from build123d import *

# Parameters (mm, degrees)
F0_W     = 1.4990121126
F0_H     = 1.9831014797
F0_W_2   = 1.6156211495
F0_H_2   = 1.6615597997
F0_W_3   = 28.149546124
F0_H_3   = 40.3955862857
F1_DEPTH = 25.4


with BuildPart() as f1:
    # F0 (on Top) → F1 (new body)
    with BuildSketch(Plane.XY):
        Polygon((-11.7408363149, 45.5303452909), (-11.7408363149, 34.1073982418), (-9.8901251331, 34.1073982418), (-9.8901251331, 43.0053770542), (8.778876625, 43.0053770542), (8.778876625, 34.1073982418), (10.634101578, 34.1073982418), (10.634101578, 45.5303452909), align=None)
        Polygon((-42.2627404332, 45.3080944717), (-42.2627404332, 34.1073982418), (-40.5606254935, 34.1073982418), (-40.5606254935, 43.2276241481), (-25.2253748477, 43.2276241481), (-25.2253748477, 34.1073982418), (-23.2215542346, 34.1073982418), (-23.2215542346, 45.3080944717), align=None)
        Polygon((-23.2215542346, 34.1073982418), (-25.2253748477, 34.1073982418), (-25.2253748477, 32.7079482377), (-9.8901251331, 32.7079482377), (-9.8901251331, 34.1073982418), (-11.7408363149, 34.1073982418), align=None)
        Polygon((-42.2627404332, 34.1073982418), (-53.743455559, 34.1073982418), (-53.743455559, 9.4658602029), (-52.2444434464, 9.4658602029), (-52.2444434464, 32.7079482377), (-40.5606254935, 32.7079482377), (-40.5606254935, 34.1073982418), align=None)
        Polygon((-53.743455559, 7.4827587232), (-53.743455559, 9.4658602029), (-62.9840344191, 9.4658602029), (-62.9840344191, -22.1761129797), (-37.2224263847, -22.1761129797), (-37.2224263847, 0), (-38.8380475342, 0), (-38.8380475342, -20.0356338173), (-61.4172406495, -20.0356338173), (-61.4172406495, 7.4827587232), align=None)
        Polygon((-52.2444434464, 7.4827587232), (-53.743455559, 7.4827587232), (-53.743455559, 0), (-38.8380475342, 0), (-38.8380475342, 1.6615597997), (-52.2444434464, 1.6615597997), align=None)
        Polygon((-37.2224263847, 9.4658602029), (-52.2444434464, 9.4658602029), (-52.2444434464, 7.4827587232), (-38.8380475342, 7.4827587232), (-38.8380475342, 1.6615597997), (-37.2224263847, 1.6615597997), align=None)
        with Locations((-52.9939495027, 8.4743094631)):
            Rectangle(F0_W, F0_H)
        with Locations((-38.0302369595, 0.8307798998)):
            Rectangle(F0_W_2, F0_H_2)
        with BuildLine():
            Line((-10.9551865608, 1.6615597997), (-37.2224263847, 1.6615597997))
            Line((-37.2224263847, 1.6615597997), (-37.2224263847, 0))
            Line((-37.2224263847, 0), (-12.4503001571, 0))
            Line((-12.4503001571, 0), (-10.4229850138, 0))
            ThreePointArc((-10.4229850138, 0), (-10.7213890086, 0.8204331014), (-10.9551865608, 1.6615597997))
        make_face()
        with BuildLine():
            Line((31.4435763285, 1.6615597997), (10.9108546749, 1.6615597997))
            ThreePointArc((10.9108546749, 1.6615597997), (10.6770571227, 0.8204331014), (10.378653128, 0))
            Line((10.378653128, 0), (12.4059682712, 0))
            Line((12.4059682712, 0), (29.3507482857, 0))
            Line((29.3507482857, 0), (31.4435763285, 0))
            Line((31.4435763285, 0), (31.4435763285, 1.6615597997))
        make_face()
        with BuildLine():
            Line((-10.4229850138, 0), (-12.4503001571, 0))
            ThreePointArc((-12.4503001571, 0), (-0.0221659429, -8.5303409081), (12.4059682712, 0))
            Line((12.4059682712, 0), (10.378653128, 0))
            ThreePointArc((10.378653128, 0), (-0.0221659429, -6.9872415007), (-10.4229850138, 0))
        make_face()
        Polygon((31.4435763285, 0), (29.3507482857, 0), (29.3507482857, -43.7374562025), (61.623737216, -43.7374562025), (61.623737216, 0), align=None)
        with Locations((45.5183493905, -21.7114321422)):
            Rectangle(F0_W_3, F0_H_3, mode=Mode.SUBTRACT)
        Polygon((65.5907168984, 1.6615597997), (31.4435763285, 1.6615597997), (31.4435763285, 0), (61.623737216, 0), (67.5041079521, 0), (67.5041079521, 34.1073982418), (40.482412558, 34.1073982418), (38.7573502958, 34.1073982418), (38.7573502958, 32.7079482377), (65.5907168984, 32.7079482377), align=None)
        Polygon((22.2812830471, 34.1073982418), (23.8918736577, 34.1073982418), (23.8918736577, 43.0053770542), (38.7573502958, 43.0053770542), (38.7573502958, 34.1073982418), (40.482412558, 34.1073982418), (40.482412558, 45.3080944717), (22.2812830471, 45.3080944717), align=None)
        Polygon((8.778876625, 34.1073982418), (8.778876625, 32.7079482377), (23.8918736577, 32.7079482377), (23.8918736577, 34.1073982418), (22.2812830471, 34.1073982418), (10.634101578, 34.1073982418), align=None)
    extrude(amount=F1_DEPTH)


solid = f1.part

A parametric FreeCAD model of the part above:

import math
import FreeCAD as App
import Part
import Sketcher

V = App.Vector
Q = App.Units.Quantity

doc = App.newDocument("Part")
body = doc.addObject("PartDesign::Body", "Body")

sketch1 = body.newObject("Sketcher::SketchObject", "Sketch")
sketch1.AttachmentSupport = (doc.getObject("XY_Plane"), [""])
sketch1.MapMode = "FlatFace"
sketch1.addGeometry(Part.LineSegment(V(-37.2, -22.2, 0), V(-37.2, 0, 0)), False)
sketch1.addGeometry(Part.LineSegment(V(-37.2, 0, 0), V(-12.5, 0, 0)), False)
sketch1.addGeometry(Part.ArcOfCircle(Part.Circle(V(0, 4.8, 0), V(0, 0, 1), 13.3), math.radians(-159), math.radians(-21)), False)
sketch1.addGeometry(Part.LineSegment(V(12.4, 0, 0), V(29.4, 0, 0)), False)
sketch1.addGeometry(Part.LineSegment(V(29.4, 0, 0), V(29.4, -43.7, 0)), False)
sketch1.addGeometry(Part.LineSegment(V(29.4, -43.7, 0), V(61.6, -43.7, 0)), False)
sketch1.addGeometry(Part.LineSegment(V(61.6, -43.7, 0), V(61.6, 0, 0)), False)
sketch1.addGeometry(Part.LineSegment(V(61.6, 0, 0), V(67.5, 0, 0)), False)
sketch1.addGeometry(Part.LineSegment(V(67.5, 0, 0), V(67.5, 34.1, 0)), False)
sketch1.addGeometry(Part.LineSegment(V(67.5, 34.1, 0), V(40.5, 34.1, 0)), False)
sketch1.addGeometry(Part.LineSegment(V(40.5, 34.1, 0), V(40.5, 45.3, 0)), False)
sketch1.addGeometry(Part.LineSegment(V(40.5, 45.3, 0), V(22.3, 45.3, 0)), False)
sketch1.addGeometry(Part.LineSegment(V(22.3, 45.3, 0), V(22.3, 34.1, 0)), False)
sketch1.addGeometry(Part.LineSegment(V(22.3, 34.1, 0), V(10.6, 34.1, 0)), False)
sketch1.addGeometry(Part.LineSegment(V(10.6, 34.1, 0), V(10.6, 45.5, 0)), False)
sketch1.addGeometry(Part.LineSegment(V(10.6, 45.5, 0), V(-11.7, 45.5, 0)), False)
sketch1.addGeometry(Part.LineSegment(V(-11.7, 45.5, 0), V(-11.7, 34.1, 0)), False)
sketch1.addGeometry(Part.LineSegment(V(-11.7, 34.1, 0), V(-23.2, 34.1, 0)), False)
sketch1.addGeometry(Part.LineSegment(V(-23.2, 34.1, 0), V(-23.2, 45.3, 0)), False)
sketch1.addGeometry(Part.LineSegment(V(-23.2, 45.3, 0), V(-42.3, 45.3, 0)), False)
sketch1.addGeometry(Part.LineSegment(V(-42.3, 45.3, 0), V(-42.3, 34.1, 0)), False)
sketch1.addGeometry(Part.LineSegment(V(-42.3, 34.1, 0), V(-53.7, 34.1, 0)), False)
sketch1.addGeometry(Part.LineSegment(V(-53.7, 34.1, 0), V(-53.7, 9.5, 0)), False)
sketch1.addGeometry(Part.LineSegment(V(-53.7, 9.5, 0), V(-63, 9.5, 0)), False)
sketch1.addGeometry(Part.LineSegment(V(-63, 9.5, 0), V(-63, -22.2, 0)), False)
sketch1.addGeometry(Part.LineSegment(V(-63, -22.2, 0), V(-37.2, -22.2, 0)), False)
sketch1.addGeometry(Part.LineSegment(V(23.9, 43, 0), V(38.8, 43, 0)), False)
sketch1.addGeometry(Part.LineSegment(V(38.8, 43, 0), V(38.8, 32.7, 0)), False)
sketch1.addGeometry(Part.LineSegment(V(38.8, 32.7, 0), V(65.6, 32.7, 0)), False)
sketch1.addGeometry(Part.LineSegment(V(65.6, 32.7, 0), V(65.6, 1.7, 0)), False)
sketch1.addGeometry(Part.LineSegment(V(65.6, 1.7, 0), V(10.9, 1.7, 0)), False)
sketch1.addGeometry(Part.ArcOfCircle(Part.Circle(V(0, 4.2, 0), V(0, 0, 1), 11.2), math.radians(-22.21), math.radians(-13.31)), False)
sketch1.addGeometry(Part.ArcOfCircle(Part.Circle(V(0, 4.2, 0), V(0, 0, 1), 11.2), math.radians(-158), math.radians(-22)), False)
sketch1.addGeometry(Part.ArcOfCircle(Part.Circle(V(0, 4.2, 0), V(0, 0, 1), 11.2), math.radians(-166.69), math.radians(-157.79)), False)
sketch1.addGeometry(Part.LineSegment(V(-11, 1.7, 0), V(-37.2, 1.7, 0)), False)
sketch1.addGeometry(Part.LineSegment(V(-37.2, 1.7, 0), V(-37.2, 9.5, 0)), False)
sketch1.addGeometry(Part.LineSegment(V(-37.2, 9.5, 0), V(-52.2, 9.5, 0)), False)
sketch1.addGeometry(Part.LineSegment(V(-52.2, 9.5, 0), V(-52.2, 32.7, 0)), False)
sketch1.addGeometry(Part.LineSegment(V(-52.2, 32.7, 0), V(-40.6, 32.7, 0)), False)
sketch1.addGeometry(Part.LineSegment(V(-40.6, 32.7, 0), V(-40.6, 43.2, 0)), False)
sketch1.addGeometry(Part.LineSegment(V(-40.6, 43.2, 0), V(-25.2, 43.2, 0)), False)
sketch1.addGeometry(Part.LineSegment(V(-25.2, 43.2, 0), V(-25.2, 32.7, 0)), False)
sketch1.addGeometry(Part.LineSegment(V(-25.2, 32.7, 0), V(-9.9, 32.7, 0)), False)
sketch1.addGeometry(Part.LineSegment(V(-9.9, 32.7, 0), V(-9.9, 43, 0)), False)
sketch1.addGeometry(Part.LineSegment(V(-9.9, 43, 0), V(8.8, 43, 0)), False)
sketch1.addGeometry(Part.LineSegment(V(8.8, 43, 0), V(8.8, 32.7, 0)), False)
sketch1.addGeometry(Part.LineSegment(V(8.8, 32.7, 0), V(23.9, 32.7, 0)), False)
sketch1.addGeometry(Part.LineSegment(V(23.9, 32.7, 0), V(23.9, 43, 0)), False)
sketch1.addGeometry(Part.LineSegment(V(59.6, -41.9, 0), V(31.4, -41.9, 0)), False)
sketch1.addGeometry(Part.LineSegment(V(31.4, -41.9, 0), V(31.4, -1.5, 0)), False)
sketch1.addGeometry(Part.LineSegment(V(31.4, -1.5, 0), V(59.6, -1.5, 0)), False)
sketch1.addGeometry(Part.LineSegment(V(59.6, -1.5, 0), V(59.6, -41.9, 0)), False)
sketch1.addGeometry(Part.LineSegment(V(-53.7, 0, 0), V(-38.8, 0, 0)), False)
sketch1.addGeometry(Part.LineSegment(V(-38.8, 0, 0), V(-38.8, -20, 0)), False)
sketch1.addGeometry(Part.LineSegment(V(-38.8, -20, 0), V(-61.4, -20, 0)), False)
sketch1.addGeometry(Part.LineSegment(V(-61.4, -20, 0), V(-61.4, 7.5, 0)), False)
sketch1.addGeometry(Part.LineSegment(V(-61.4, 7.5, 0), V(-53.7, 7.5, 0)), False)
sketch1.addGeometry(Part.LineSegment(V(-53.7, 7.5, 0), V(-53.7, 0, 0)), False)
sketch1.addGeometry(Part.LineSegment(V(-38.8, 7.5, 0), V(-38.8, 1.7, 0)), False)
sketch1.addGeometry(Part.LineSegment(V(-38.8, 1.7, 0), V(-52.2, 1.7, 0)), False)
sketch1.addGeometry(Part.LineSegment(V(-52.2, 1.7, 0), V(-52.2, 7.5, 0)), False)
sketch1.addGeometry(Part.LineSegment(V(-52.2, 7.5, 0), V(-38.8, 7.5, 0)), False)
sketch1.addConstraint(Sketcher.Constraint("Coincident", 0, 2, 1, 1))
sketch1.addConstraint(Sketcher.Constraint("Coincident", 1, 2, 2, 1))
sketch1.addConstraint(Sketcher.Constraint("Coincident", 2, 2, 3, 1))
sketch1.addConstraint(Sketcher.Constraint("Coincident", 3, 2, 4, 1))
sketch1.addConstraint(Sketcher.Constraint("Coincident", 4, 2, 5, 1))
sketch1.addConstraint(Sketcher.Constraint("Coincident", 5, 2, 6, 1))
sketch1.addConstraint(Sketcher.Constraint("Coincident", 6, 2, 7, 1))
sketch1.addConstraint(Sketcher.Constraint("Coincident", 7, 2, 8, 1))
sketch1.addConstraint(Sketcher.Constraint("Coincident", 8, 2, 9, 1))
sketch1.addConstraint(Sketcher.Constraint("Coincident", 9, 2, 10, 1))
sketch1.addConstraint(Sketcher.Constraint("Coincident", 10, 2, 11, 1))
sketch1.addConstraint(Sketcher.Constraint("Coincident", 11, 2, 12, 1))
sketch1.addConstraint(Sketcher.Constraint("Coincident", 12, 2, 13, 1))
sketch1.addConstraint(Sketcher.Constraint("Coincident", 13, 2, 14, 1))
sketch1.addConstraint(Sketcher.Constraint("Coincident", 14, 2, 15, 1))
sketch1.addConstraint(Sketcher.Constraint("Coincident", 15, 2, 16, 1))
sketch1.addConstraint(Sketcher.Constraint("Coincident", 16, 2, 17, 1))
sketch1.addConstraint(Sketcher.Constraint("Coincident", 17, 2, 18, 1))
sketch1.addConstraint(Sketcher.Constraint("Coincident", 18, 2, 19, 1))
sketch1.addConstraint(Sketcher.Constraint("Coincident", 19, 2, 20, 1))
sketch1.addConstraint(Sketcher.Constraint("Coincident", 20, 2, 21, 1))
sketch1.addConstraint(Sketcher.Constraint("Coincident", 21, 2, 22, 1))
sketch1.addConstraint(Sketcher.Constraint("Coincident", 22, 2, 23, 1))
sketch1.addConstraint(Sketcher.Constraint("Coincident", 23, 2, 24, 1))
sketch1.addConstraint(Sketcher.Constraint("Coincident", 24, 2, 25, 1))
sketch1.addConstraint(Sketcher.Constraint("Coincident", 25, 2, 0, 1))
sketch1.addConstraint(Sketcher.Constraint("Coincident", 26, 2, 27, 1))
sketch1.addConstraint(Sketcher.Constraint("Coincident", 27, 2, 28, 1))
sketch1.addConstraint(Sketcher.Constraint("Coincident", 28, 2, 29, 1))
sketch1.addConstraint(Sketcher.Constraint("Coincident", 29, 2, 30, 1))
sketch1.addConstraint(Sketcher.Constraint("Coincident", 30, 2, 31, 2))
sketch1.addConstraint(Sketcher.Constraint("Tangent", 31, 1, 32, 2))
sketch1.addConstraint(Sketcher.Constraint("Tangent", 32, 1, 33, 2))
sketch1.addConstraint(Sketcher.Constraint("Coincident", 33, 1, 34, 1))
sketch1.addConstraint(Sketcher.Constraint("Coincident", 34, 2, 35, 1))
sketch1.addConstraint(Sketcher.Constraint("Coincident", 35, 2, 36, 1))
sketch1.addConstraint(Sketcher.Constraint("Coincident", 36, 2, 37, 1))
sketch1.addConstraint(Sketcher.Constraint("Coincident", 37, 2, 38, 1))
sketch1.addConstraint(Sketcher.Constraint("Coincident", 38, 2, 39, 1))
sketch1.addConstraint(Sketcher.Constraint("Coincident", 39, 2, 40, 1))
sketch1.addConstraint(Sketcher.Constraint("Coincident", 40, 2, 41, 1))
sketch1.addConstraint(Sketcher.Constraint("Coincident", 41, 2, 42, 1))
sketch1.addConstraint(Sketcher.Constraint("Coincident", 42, 2, 43, 1))
sketch1.addConstraint(Sketcher.Constraint("Coincident", 43, 2, 44, 1))
sketch1.addConstraint(Sketcher.Constraint("Coincident", 44, 2, 45, 1))
sketch1.addConstraint(Sketcher.Constraint("Coincident", 45, 2, 46, 1))
sketch1.addConstraint(Sketcher.Constraint("Coincident", 46, 2, 47, 1))
sketch1.addConstraint(Sketcher.Constraint("Coincident", 47, 2, 26, 1))
sketch1.addConstraint(Sketcher.Constraint("Coincident", 48, 2, 49, 1))
sketch1.addConstraint(Sketcher.Constraint("Coincident", 49, 2, 50, 1))
sketch1.addConstraint(Sketcher.Constraint("Coincident", 50, 2, 51, 1))
sketch1.addConstraint(Sketcher.Constraint("Coincident", 51, 2, 48, 1))
sketch1.addConstraint(Sketcher.Constraint("Coincident", 52, 2, 53, 1))
sketch1.addConstraint(Sketcher.Constraint("Coincident", 53, 2, 54, 1))
sketch1.addConstraint(Sketcher.Constraint("Coincident", 54, 2, 55, 1))
sketch1.addConstraint(Sketcher.Constraint("Coincident", 55, 2, 56, 1))
sketch1.addConstraint(Sketcher.Constraint("Coincident", 56, 2, 57, 1))
sketch1.addConstraint(Sketcher.Constraint("Coincident", 57, 2, 52, 1))
sketch1.addConstraint(Sketcher.Constraint("Coincident", 58, 2, 59, 1))
sketch1.addConstraint(Sketcher.Constraint("Coincident", 59, 2, 60, 1))
sketch1.addConstraint(Sketcher.Constraint("Coincident", 60, 2, 61, 1))
sketch1.addConstraint(Sketcher.Constraint("Coincident", 61, 2, 58, 1))
sketch1.addConstraint(Sketcher.Constraint("Vertical", 0))
sketch1.addConstraint(Sketcher.Constraint("Horizontal", 1))
sketch1.addConstraint(Sketcher.Constraint("Horizontal", 3))
sketch1.addConstraint(Sketcher.Constraint("Vertical", 4))
sketch1.addConstraint(Sketcher.Constraint("Horizontal", 5))
sketch1.addConstraint(Sketcher.Constraint("Vertical", 6))
sketch1.addConstraint(Sketcher.Constraint("Horizontal", 7))
sketch1.addConstraint(Sketcher.Constraint("Vertical", 8))
sketch1.addConstraint(Sketcher.Constraint("Horizontal", 9))
sketch1.addConstraint(Sketcher.Constraint("Vertical", 10))
sketch1.addConstraint(Sketcher.Constraint("Horizontal", 11))
sketch1.addConstraint(Sketcher.Constraint("Vertical", 12))
sketch1.addConstraint(Sketcher.Constraint("Horizontal", 13))
sketch1.addConstraint(Sketcher.Constraint("Vertical", 14))
sketch1.addConstraint(Sketcher.Constraint("Horizontal", 15))
sketch1.addConstraint(Sketcher.Constraint("Vertical", 16))
sketch1.addConstraint(Sketcher.Constraint("Horizontal", 17))
sketch1.addConstraint(Sketcher.Constraint("Vertical", 18))
sketch1.addConstraint(Sketcher.Constraint("Horizontal", 19))
sketch1.addConstraint(Sketcher.Constraint("Vertical", 20))
sketch1.addConstraint(Sketcher.Constraint("Horizontal", 21))
sketch1.addConstraint(Sketcher.Constraint("Vertical", 22))
sketch1.addConstraint(Sketcher.Constraint("Horizontal", 23))
sketch1.addConstraint(Sketcher.Constraint("Vertical", 24))
sketch1.addConstraint(Sketcher.Constraint("Horizontal", 25))
sketch1.addConstraint(Sketcher.Constraint("Horizontal", 26))
sketch1.addConstraint(Sketcher.Constraint("Vertical", 27))
sketch1.addConstraint(Sketcher.Constraint("Horizontal", 28))
sketch1.addConstraint(Sketcher.Constraint("Vertical", 29))
sketch1.addConstraint(Sketcher.Constraint("Horizontal", 30))
sketch1.addConstraint(Sketcher.Constraint("Horizontal", 34))
sketch1.addConstraint(Sketcher.Constraint("Vertical", 35))
sketch1.addConstraint(Sketcher.Constraint("Horizontal", 36))
sketch1.addConstraint(Sketcher.Constraint("Vertical", 37))
sketch1.addConstraint(Sketcher.Constraint("Horizontal", 38))
sketch1.addConstraint(Sketcher.Constraint("Vertical", 39))
sketch1.addConstraint(Sketcher.Constraint("Horizontal", 40))
sketch1.addConstraint(Sketcher.Constraint("Vertical", 41))
sketch1.addConstraint(Sketcher.Constraint("Horizontal", 42))
sketch1.addConstraint(Sketcher.Constraint("Vertical", 43))
sketch1.addConstraint(Sketcher.Constraint("Horizontal", 44))
sketch1.addConstraint(Sketcher.Constraint("Vertical", 45))
sketch1.addConstraint(Sketcher.Constraint("Horizontal", 46))
sketch1.addConstraint(Sketcher.Constraint("Vertical", 47))
sketch1.addConstraint(Sketcher.Constraint("Horizontal", 48))
sketch1.addConstraint(Sketcher.Constraint("Vertical", 49))
sketch1.addConstraint(Sketcher.Constraint("Horizontal", 50))
sketch1.addConstraint(Sketcher.Constraint("Vertical", 51))
sketch1.addConstraint(Sketcher.Constraint("Horizontal", 52))
sketch1.addConstraint(Sketcher.Constraint("Vertical", 53))
sketch1.addConstraint(Sketcher.Constraint("Horizontal", 54))
sketch1.addConstraint(Sketcher.Constraint("Vertical", 55))
sketch1.addConstraint(Sketcher.Constraint("Horizontal", 56))
sketch1.addConstraint(Sketcher.Constraint("Vertical", 57))
sketch1.addConstraint(Sketcher.Constraint("Vertical", 58))
sketch1.addConstraint(Sketcher.Constraint("Horizontal", 59))
sketch1.addConstraint(Sketcher.Constraint("Vertical", 60))
sketch1.addConstraint(Sketcher.Constraint("Horizontal", 61))
sketch1.addConstraint(Sketcher.Constraint("Coincident", 33, 3, 31, 3))
sketch1.addConstraint(Sketcher.Constraint("PointOnObject", 0, 2, -1))
sketch1.addConstraint(Sketcher.Constraint("PointOnObject", 2, 2, -1))
sketch1.addConstraint(Sketcher.Constraint("PointOnObject", 6, 2, -1))
sketch1.addConstraint(Sketcher.Constraint("PointOnObject", 31, 1, -1))
sketch1.addConstraint(Sketcher.Constraint("PointOnObject", 32, 1, -1))
sketch1.addConstraint(Sketcher.Constraint("PointOnObject", 52, 2, -1))
sketch1.addConstraint(Sketcher.Constraint("Horizontal", 9, 2, 12, 2))
sketch1.addConstraint(Sketcher.Constraint("Horizontal", 13, 2, 16, 2))
sketch1.addConstraint(Sketcher.Constraint("Horizontal", 11, 2, 18, 2))
sketch1.addConstraint(Sketcher.Constraint("Horizontal", 17, 2, 20, 2))
sketch1.addConstraint(Sketcher.Constraint("Horizontal", 30, 2, 33, 1))
sketch1.addConstraint(Sketcher.Constraint("Horizontal", 23, 2, 35, 2))
sketch1.addConstraint(Sketcher.Constraint("Horizontal", 28, 2, 37, 2))
sketch1.addConstraint(Sketcher.Constraint("Horizontal", 38, 2, 41, 2))
sketch1.addConstraint(Sketcher.Constraint("Horizontal", 26, 2, 43, 2))
sketch1.addConstraint(Sketcher.Constraint("Horizontal", 42, 2, 45, 2))
sketch1.addConstraint(Sketcher.Constraint("Horizontal", 34, 2, 58, 2))
sketch1.addConstraint(Sketcher.Constraint("Horizontal", 56, 2, 60, 2))
sketch1.addConstraint(Sketcher.Constraint("Vertical", 2, 3, 31, 3))
sketch1.addConstraint(Sketcher.Constraint("Vertical", 25, 2, 34, 2))
sketch1.addConstraint(Sketcher.Constraint("Vertical", 22, 2, 56, 2))
sketch1.addConstraint(Sketcher.Constraint("Vertical", 53, 2, 58, 2))
sketch1.addConstraint(Sketcher.Constraint("Vertical", 37, 2, 59, 2))
sketch1.addConstraint(Sketcher.Constraint("Equal", 40, 42))
sketch1.addConstraint(Sketcher.Constraint("DistanceX", 44, 1, 44, 2, Q("0.7350001 in")))
sketch1.addConstraint(Sketcher.Constraint("DistanceX", 46, 1, 46, 2, Q("0.5949999 in")))
sketch1.addConstraint(Sketcher.Constraint("Radius", 2, Q("13.318649 mm")))
sketch1.addConstraint(Sketcher.Constraint("Radius", 31, Q("11.234661 mm")))
sketch1.addConstraint(Sketcher.Constraint("DistanceY", 8, 1, 8, 2, Q("34.107398 mm")))
sketch1.addConstraint(Sketcher.Constraint("DistanceY", 35, 1, 35, 2, Q("7.8043 mm")))
sketch1.addConstraint(Sketcher.Constraint("DistanceY", 58, 2, 58, 1, Q("5.821199 mm")))
sketch1.addConstraint(Sketcher.Constraint("DistanceX", 3, 1, 3, 2, Q("16.94478 mm")))
sketch1.addConstraint(Sketcher.Constraint("DistanceX", 5, 1, 5, 2, Q("32.272989 mm")))
sketch1.addConstraint(Sketcher.Constraint("DistanceX", 7, 1, 7, 2, Q("5.880371 mm")))
sketch1.addConstraint(Sketcher.Constraint("DistanceX", 11, 2, 11, 1, Q("18.20113 mm")))
sketch1.addConstraint(Sketcher.Constraint("DistanceX", 13, 2, 13, 1, Q("11.647181 mm")))
sketch1.addConstraint(Sketcher.Constraint("DistanceX", 23, 2, 23, 1, Q("9.240579 mm")))
sketch1.addConstraint(Sketcher.Constraint("DistanceX", 25, 1, 25, 2, Q("25.761608 mm")))
sketch1.addConstraint(Sketcher.Constraint("DistanceX", 34, 2, 34, 1, Q("26.26724 mm")))
sketch1.addConstraint(Sketcher.Constraint("DistanceX", 40, 1, 40, 2, Q("15.335251 mm")))
sketch1.addConstraint(Sketcher.Constraint("DistanceX", 52, 1, 52, 2, Q("14.905408 mm")))
sketch1.addConstraint(Sketcher.Constraint("DistanceY", 22, 2, 22, 1, Q("24.641538 mm")))
sketch1.addConstraint(Sketcher.Constraint("DistanceY", 27, 2, 27, 1, Q("10.297429 mm")))
sketch1.addConstraint(Sketcher.Constraint("DistanceY", 29, 2, 29, 1, Q("31.046388 mm")))
sketch1.addConstraint(Sketcher.Constraint("DistanceX", 1, 2, -1, 1, Q("12.4503 mm")))
sketch1.addConstraint(Sketcher.Constraint("DistanceX", -1, 1, 13, 2, Q("10.634102 mm")))
sketch1.addConstraint(Sketcher.Constraint("DistanceX", 1, 1, 1, 2, Q("24.772126 mm")))
sketch1.addConstraint(Sketcher.Constraint("DistanceX", 9, 2, 9, 1, Q("27.021695 mm")))
sketch1.addConstraint(Sketcher.Constraint("DistanceX", 15, 2, 15, 1, Q("22.374938 mm")))
sketch1.addConstraint(Sketcher.Constraint("DistanceX", 17, 2, 17, 1, Q("11.480718 mm")))
sketch1.addConstraint(Sketcher.Constraint("DistanceX", 19, 2, 19, 1, Q("19.041186 mm")))
sketch1.addConstraint(Sketcher.Constraint("DistanceX", 26, 1, 26, 2, Q("14.865477 mm")))
sketch1.addConstraint(Sketcher.Constraint("DistanceX", 28, 1, 28, 2, Q("26.833367 mm")))
sketch1.addConstraint(Sketcher.Constraint("DistanceX", 30, 2, 30, 1, Q("54.679862 mm")))
sketch1.addConstraint(Sketcher.Constraint("DistanceX", 36, 2, 36, 1, Q("15.022017 mm")))
sketch1.addConstraint(Sketcher.Constraint("DistanceX", 48, 2, 48, 1, Q("28.149546 mm")))
sketch1.addConstraint(Sketcher.Constraint("DistanceX", 54, 2, 54, 1, Q("22.579193 mm")))
sketch1.addConstraint(Sketcher.Constraint("DistanceY", 0, 1, 0, 2, Q("22.176113 mm")))
sketch1.addConstraint(Sketcher.Constraint("DistanceY", 4, 2, 4, 1, Q("43.737456 mm")))
sketch1.addConstraint(Sketcher.Constraint("DistanceY", 10, 1, 10, 2, Q("11.200696 mm")))
sketch1.addConstraint(Sketcher.Constraint("DistanceY", 14, 1, 14, 2, Q("11.422947 mm")))
sketch1.addConstraint(Sketcher.Constraint("DistanceY", 39, 1, 39, 2, Q("10.519676 mm")))
sketch1.addConstraint(Sketcher.Constraint("DistanceY", 49, 1, 49, 2, Q("40.395586 mm")))
sketch1.addConstraint(Sketcher.Constraint("DistanceY", 53, 2, 53, 1, Q("20.035634 mm")))
sketch1.addConstraint(Sketcher.Constraint("DistanceY", 49, 2, -1, 1, Q("1.513639 mm")))
sketch1.addConstraint(Sketcher.Constraint("DistanceX", -1, 1, 48, 2, Q("31.443576 mm")))
pad1 = body.newObject("PartDesign::Pad", "Pad")
pad1.Profile = sketch1
pad1.Length = Q("1 in")

doc.recompute()
